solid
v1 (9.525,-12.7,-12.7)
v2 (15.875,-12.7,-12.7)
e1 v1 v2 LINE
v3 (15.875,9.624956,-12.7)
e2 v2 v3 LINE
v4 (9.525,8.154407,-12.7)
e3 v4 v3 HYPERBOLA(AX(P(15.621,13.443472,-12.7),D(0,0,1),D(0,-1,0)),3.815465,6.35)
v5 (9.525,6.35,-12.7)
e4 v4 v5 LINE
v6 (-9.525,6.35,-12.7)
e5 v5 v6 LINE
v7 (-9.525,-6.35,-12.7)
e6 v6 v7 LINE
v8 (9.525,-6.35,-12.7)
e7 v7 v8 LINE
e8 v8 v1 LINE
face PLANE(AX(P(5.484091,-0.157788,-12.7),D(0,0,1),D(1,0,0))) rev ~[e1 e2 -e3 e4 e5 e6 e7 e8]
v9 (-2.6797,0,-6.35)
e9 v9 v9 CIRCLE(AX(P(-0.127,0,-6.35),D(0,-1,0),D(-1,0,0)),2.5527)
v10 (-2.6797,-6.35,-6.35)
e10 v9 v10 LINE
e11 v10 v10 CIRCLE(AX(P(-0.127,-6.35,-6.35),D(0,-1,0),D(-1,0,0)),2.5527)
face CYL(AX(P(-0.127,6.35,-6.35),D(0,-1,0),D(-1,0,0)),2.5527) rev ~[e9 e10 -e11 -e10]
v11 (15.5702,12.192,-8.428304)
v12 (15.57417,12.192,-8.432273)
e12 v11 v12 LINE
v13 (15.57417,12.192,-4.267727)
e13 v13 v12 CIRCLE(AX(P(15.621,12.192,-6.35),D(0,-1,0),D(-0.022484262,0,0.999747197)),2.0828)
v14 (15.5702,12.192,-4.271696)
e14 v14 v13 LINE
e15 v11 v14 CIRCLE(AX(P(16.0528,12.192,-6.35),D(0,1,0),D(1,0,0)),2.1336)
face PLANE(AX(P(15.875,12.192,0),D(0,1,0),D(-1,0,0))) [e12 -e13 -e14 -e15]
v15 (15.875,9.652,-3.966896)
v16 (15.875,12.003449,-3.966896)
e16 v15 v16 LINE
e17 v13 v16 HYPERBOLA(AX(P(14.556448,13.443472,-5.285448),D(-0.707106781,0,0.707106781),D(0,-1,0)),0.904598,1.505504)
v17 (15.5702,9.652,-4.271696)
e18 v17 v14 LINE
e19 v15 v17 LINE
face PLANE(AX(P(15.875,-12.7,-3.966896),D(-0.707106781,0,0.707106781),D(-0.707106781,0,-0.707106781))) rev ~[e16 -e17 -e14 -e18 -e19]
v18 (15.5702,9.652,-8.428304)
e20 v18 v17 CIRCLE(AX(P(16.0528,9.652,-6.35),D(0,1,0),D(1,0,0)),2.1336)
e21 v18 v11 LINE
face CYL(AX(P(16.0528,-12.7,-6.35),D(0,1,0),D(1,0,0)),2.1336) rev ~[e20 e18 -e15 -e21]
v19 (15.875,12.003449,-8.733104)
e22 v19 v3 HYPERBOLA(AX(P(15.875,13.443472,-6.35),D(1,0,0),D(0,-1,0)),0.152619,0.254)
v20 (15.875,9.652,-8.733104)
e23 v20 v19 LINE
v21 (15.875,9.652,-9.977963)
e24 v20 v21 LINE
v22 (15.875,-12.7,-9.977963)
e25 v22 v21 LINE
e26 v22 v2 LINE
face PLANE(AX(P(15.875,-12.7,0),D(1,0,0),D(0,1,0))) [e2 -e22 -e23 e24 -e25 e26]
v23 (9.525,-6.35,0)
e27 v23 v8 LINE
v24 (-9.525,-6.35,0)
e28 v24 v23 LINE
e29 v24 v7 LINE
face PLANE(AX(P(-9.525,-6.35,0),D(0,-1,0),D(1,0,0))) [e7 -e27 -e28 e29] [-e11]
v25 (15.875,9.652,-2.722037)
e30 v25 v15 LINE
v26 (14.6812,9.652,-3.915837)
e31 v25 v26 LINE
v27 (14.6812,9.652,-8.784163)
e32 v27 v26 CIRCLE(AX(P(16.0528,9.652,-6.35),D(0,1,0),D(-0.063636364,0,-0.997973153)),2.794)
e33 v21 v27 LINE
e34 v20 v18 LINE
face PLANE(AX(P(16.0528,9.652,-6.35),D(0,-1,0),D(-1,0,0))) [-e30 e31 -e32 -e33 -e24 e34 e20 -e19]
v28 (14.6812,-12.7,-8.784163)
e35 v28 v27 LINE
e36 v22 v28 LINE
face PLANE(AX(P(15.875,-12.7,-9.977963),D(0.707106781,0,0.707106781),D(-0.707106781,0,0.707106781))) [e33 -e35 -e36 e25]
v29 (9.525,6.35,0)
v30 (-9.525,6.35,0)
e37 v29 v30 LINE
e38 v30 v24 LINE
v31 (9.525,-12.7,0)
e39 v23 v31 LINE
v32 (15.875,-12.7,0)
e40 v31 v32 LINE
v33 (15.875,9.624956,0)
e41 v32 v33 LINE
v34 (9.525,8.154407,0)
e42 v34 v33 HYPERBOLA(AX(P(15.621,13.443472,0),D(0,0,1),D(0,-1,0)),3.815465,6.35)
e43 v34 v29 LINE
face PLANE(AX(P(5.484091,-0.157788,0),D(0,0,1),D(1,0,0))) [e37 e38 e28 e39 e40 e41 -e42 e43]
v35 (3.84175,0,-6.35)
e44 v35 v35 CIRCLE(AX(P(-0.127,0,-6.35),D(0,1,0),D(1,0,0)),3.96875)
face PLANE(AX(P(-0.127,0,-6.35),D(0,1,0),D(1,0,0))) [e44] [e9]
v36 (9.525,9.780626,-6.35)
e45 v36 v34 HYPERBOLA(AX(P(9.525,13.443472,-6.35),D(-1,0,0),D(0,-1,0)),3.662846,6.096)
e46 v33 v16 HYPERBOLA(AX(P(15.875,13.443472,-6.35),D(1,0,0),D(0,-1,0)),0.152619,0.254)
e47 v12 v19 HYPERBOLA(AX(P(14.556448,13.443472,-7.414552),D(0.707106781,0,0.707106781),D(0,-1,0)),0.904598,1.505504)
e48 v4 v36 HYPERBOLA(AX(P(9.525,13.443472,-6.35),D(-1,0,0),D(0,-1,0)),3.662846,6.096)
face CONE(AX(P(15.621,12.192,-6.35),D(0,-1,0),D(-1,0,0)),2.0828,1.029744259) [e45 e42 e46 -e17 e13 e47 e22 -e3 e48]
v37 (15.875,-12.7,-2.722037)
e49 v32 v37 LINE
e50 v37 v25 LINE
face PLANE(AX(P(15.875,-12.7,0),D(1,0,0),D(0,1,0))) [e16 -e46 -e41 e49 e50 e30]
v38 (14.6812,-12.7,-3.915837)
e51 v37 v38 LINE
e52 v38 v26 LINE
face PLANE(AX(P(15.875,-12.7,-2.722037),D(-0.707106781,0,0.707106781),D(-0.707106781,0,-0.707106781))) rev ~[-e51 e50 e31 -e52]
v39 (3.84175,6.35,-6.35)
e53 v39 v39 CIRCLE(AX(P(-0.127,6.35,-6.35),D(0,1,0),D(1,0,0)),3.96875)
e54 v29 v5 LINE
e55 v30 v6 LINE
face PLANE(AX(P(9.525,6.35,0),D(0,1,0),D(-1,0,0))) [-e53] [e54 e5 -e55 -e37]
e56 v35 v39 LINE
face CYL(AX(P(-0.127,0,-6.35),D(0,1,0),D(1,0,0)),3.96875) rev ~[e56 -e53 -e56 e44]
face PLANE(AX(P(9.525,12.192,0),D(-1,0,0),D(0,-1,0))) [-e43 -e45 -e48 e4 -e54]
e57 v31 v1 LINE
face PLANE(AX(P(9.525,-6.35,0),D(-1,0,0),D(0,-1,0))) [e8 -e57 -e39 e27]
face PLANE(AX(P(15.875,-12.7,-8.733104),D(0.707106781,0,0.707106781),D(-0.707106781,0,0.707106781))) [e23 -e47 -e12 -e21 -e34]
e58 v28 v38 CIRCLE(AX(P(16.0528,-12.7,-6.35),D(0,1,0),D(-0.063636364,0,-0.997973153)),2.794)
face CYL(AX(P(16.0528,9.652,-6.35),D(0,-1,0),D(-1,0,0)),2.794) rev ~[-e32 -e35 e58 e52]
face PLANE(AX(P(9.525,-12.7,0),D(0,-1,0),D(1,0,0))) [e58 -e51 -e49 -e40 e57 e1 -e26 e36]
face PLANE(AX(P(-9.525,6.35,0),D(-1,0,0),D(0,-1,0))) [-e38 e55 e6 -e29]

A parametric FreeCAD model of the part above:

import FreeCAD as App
import Part
import Sketcher
from FreeCAD import Vector
Q = App.Units.Quantity


def add_polygon(sketch, points):
    """Adds a closed chain of lines whose ends are joined by coincident constraints."""
    first, n = sketch.GeometryCount, len(points)
    for a, b in zip(points, points[1:] + points[:1]):
        sketch.addGeometry(Part.LineSegment(App.Vector(*a, 0), App.Vector(*b, 0)), False)
    for i in range(n):
        sketch.addConstraint(Sketcher.Constraint("Coincident", first + i, 2, first + (i + 1) % n, 1))

doc = App.newDocument("Part")
body = doc.addObject("PartDesign::Body", "Body")

# Sketch on XY plane
sketch1 = body.newObject("Sketcher::SketchObject", "Sketch")
sketch1.AttachmentSupport = (doc.getObject("XY_Plane"), [""])
sketch1.MapMode = "FlatFace"
add_polygon(sketch1, [(-10, 6), (-10, -6), (10, -6), (10, -13), (16, -13), (16, 12), (10, 12), (10, 6)])  # lines 0-7
sketch1.addConstraint([
    Sketcher.Constraint("Vertical", 0),
    Sketcher.Constraint("Horizontal", 1),
    Sketcher.Constraint("Vertical", 2),
    Sketcher.Constraint("Horizontal", 3),
    Sketcher.Constraint("Vertical", 4),
    Sketcher.Constraint("Horizontal", 5),
    Sketcher.Constraint("Vertical", 6),
    Sketcher.Constraint("Horizontal", 7),
    Sketcher.Constraint("Symmetric", 0, 2, 6, 2, -1, 1),
    Sketcher.Constraint("Vertical", 2, 2, 5, 2),
    Sketcher.Constraint("Equal", 5, 2),
    Sketcher.Constraint("DistanceY", 0, 2, 0, 1, Q("0.5 in")),
    Sketcher.Constraint("DistanceX", 0, 2, 3, 2, Q("1 in")),
    Sketcher.Constraint("DistanceX", 1, 1, 1, 2, Q("0.75 in")),
    Sketcher.Constraint("DistanceY", 4, 1, 4, 2, Q("0.98 in")),
])
pad1 = body.newObject("PartDesign::Pad", "Pad")
pad1.Profile = sketch1
pad1.Length = Q("0.5 in")
pad1.Reversed = True

# Sketch on XZ plane
sketch2 = body.newObject("Sketcher::SketchObject", "Sketch001")
sketch2.AttachmentSupport = (doc.getObject("XZ_Plane"), [""])
sketch2.MapMode = "FlatFace"
sketch2.AttachmentOffset = App.Placement(Vector(0, 0, -0.25 * 25.4), App.Rotation())
sketch2.addGeometry(Part.Circle(Vector(-0.1, -6.3, 0), Vector(0, 0, 1), 2.6), False)
sketch2.addConstraint([
    Sketcher.Constraint("Diameter", 0, Q("0.201 in")),
    Sketcher.Constraint("DistanceY", 0, 3, -1, 1, Q("0.25 in")),
    Sketcher.Constraint("DistanceX", 0, 3, -1, 1, Q("0.005 in")),
])
doc.recompute()
hole = body.newObject("PartDesign::Hole", "Hole")
hole.Profile = sketch2
hole.ThreadType = "None"
hole.Diameter = Q("0.201 in")
hole.DepthType = "ThroughAll"
hole.HoleCutType = "Counterbore"
hole.HoleCutDiameter = Q("0.3125 in")
hole.HoleCutDepth = Q("0.25 in")
hole.Reversed = True

# Sketch on XZ plane
sketch3 = body.newObject("Sketcher::SketchObject", "Sketch002")
sketch3.AttachmentSupport = (doc.getObject("XZ_Plane"), [""])
sketch3.MapMode = "FlatFace"
sketch3.AttachmentOffset = App.Placement(Vector(0, 0, 0.5 * 25.4), App.Rotation())
sketch3.addGeometry(Part.Circle(Vector(16.1, -6.3, 0), Vector(0, 0, 1), 2.1), False)
sketch3.addConstraint([
    Sketcher.Constraint("Diameter", 0, Q("0.168 in")),
    Sketcher.Constraint("DistanceY", 0, 3, -1, 1, Q("0.25 in")),
    Sketcher.Constraint("DistanceX", -1, 1, 0, 3, Q("0.632 in")),
])
doc.recompute()
hole2 = body.newObject("PartDesign::Hole", "Hole001")
hole2.Profile = sketch3
hole2.ThreadType = "None"
hole2.Diameter = Q("0.168 in")
hole2.DepthType = "ThroughAll"
hole2.HoleCutType = "Counterbore"
hole2.HoleCutDiameter = Q("0.22 in")
hole2.HoleCutDepth = Q("0.88 in")

# Sketch on XZ plane
sketch4 = body.newObject("Sketcher::SketchObject", "Sketch003")
sketch4.AttachmentSupport = (doc.getObject("XZ_Plane"), [""])
sketch4.MapMode = "FlatFace"
sketch4.AttachmentOffset = App.Placement(Vector(0, 0, 0.5 * 25.4), App.Rotation())
add_polygon(sketch4, [(14.7, -8.8), (15.9, -10), (15.9, -8.8)])  # lines 0-2
add_polygon(sketch4, [(15.9, -3.9), (15.9, -2.7), (14.7, -3.9)])  # lines 3-5
sketch4.addConstraint([
    Sketcher.Constraint("Vertical", 1),
    Sketcher.Constraint("Horizontal", 2),
    Sketcher.Constraint("Vertical", 3),
    Sketcher.Constraint("Horizontal", 5),
    Sketcher.Constraint("Perpendicular", 0, 4),
    Sketcher.Constraint("Vertical", 1, 2, 3, 2),
    Sketcher.Constraint("Vertical", 2, 2, 4, 2),
    Sketcher.Constraint("Equal", 5, 1),
    Sketcher.Constraint("DistanceX", 2, 2, 2, 1, Q("0.047 in")),
    Sketcher.Constraint("DistanceX", -1, 1, 0, 2, Q("0.625 in")),
    Sketcher.Constraint("DistanceY", 0, 2, -1, 1, Q("9.977963 mm")),
    Sketcher.Constraint("DistanceY", 3, 2, -1, 1, Q("2.722037 mm")),
])
pocket1 = body.newObject("PartDesign::Pocket", "Pocket")
pocket1.Profile = sketch4
pocket1.Length = Q("0.88 in")

# Sketch on XZ plane
sketch5 = body.newObject("Sketcher::SketchObject", "Sketch004")
sketch5.AttachmentSupport = (doc.getObject("XZ_Plane"), [""])
sketch5.MapMode = "FlatFace"
sketch5.AttachmentOffset = App.Placement(Vector(0, 0, 0.5 * 25.4), App.Rotation())
add_polygon(sketch5, [(15.88, -3.97), (15.57, -4.27), (15.88, -4.27)])  # lines 0-2
add_polygon(sketch5, [(15.88, -8.73), (15.88, -8.43), (15.57, -8.43)])  # lines 3-5
sketch5.addConstraint([
    Sketcher.Constraint("Horizontal", 1),
    Sketcher.Constraint("Vertical", 2),
    Sketcher.Constraint("Vertical", 3),
    Sketcher.Constraint("Horizontal", 4),
    Sketcher.Constraint("Perpendicular", 0, 5),
    Sketcher.Constraint("Vertical", 2, 2, 3, 2),
    Sketcher.Constraint("Vertical", 0, 2, 4, 2),
    Sketcher.Constraint("Equal", 4, 2),
    Sketcher.Constraint("DistanceX", 1, 1, 1, 2, Q("0.012 in")),
    Sketcher.Constraint("DistanceX", -1, 1, 0, 2, Q("0.613 in")),
    Sketcher.Constraint("DistanceY", 0, 2, -1, 1, Q("4.271696 mm")),
    Sketcher.Constraint("DistanceY", 3, 2, -1, 1, Q("8.428304 mm")),
])
pocket2 = body.newObject("PartDesign::Pocket", "Pocket001")
pocket2.Profile = sketch5
pocket2.Type = "ThroughAll"

# Sketch on XY plane
sketch6 = body.newObject("Sketcher::SketchObject", "Sketch005")
sketch6.AttachmentSupport = (doc.getObject("XY_Plane"), [""])
sketch6.MapMode = "FlatFace"
sketch6.AttachmentOffset = App.Placement(Vector(0, 0, -0.25 * 25.4), App.Rotation())
add_polygon(sketch6, [(5.6, 7.4), (13.5, 12.2), (5.6, 12.2)])  # lines 0-2
sketch6.addGeometry(Part.LineSegment(Vector(15.6, 12.2, 0), Vector(15.6, 7.4, 0)), True)  # axis
sketch6.addConstraint([
    Sketcher.Constraint("Horizontal", 1),
    Sketcher.Constraint("Vertical", 2),
    Sketcher.Constraint("Vertical", 3),
    Sketcher.Constraint("Horizontal", 1, 2, 3, 1),
    Sketcher.Constraint("Horizontal", 2, 2, 3, 2),
    Sketcher.Constraint("Angle", 0, Q("31 deg")),
    Sketcher.Constraint("DistanceX", 1, 2, 1, 1, Q("0.3125 in")),
    Sketcher.Constraint("DistanceY", -1, 1, 0, 2, Q("0.48 in")),
    Sketcher.Constraint("DistanceX", -1, 1, 0, 2, Q("0.533 in")),
    Sketcher.Constraint("DistanceX", -1, 1, 3, 1, Q("0.615 in")),
])
groove = body.newObject("PartDesign::Groove", "Groove")
groove.Profile = sketch6
groove.ReferenceAxis = (sketch6, ["Axis0"])
groove.Angle = 360

# Sketch on YZ plane
sketch7 = body.newObject("Sketcher::SketchObject", "Sketch006")
sketch7.AttachmentSupport = (doc.getObject("YZ_Plane"), [""])
sketch7.MapMode = "FlatFace"
sketch7.AttachmentOffset = App.Placement(Vector(0, 0, 0.625 * 25.4), App.Rotation())
add_polygon(sketch7, [(12.2, -8.5), (9.7, -12.7), (12.2, -12.7)])  # lines 0-2
add_polygon(sketch7, [(9.7, 0), (12.2, -4.2), (12.2, 0)])  # lines 3-5
sketch7.addConstraint([
    Sketcher.Constraint("Horizontal", 1),
    Sketcher.Constraint("Vertical", 2),
    Sketcher.Constraint("Vertical", 4),
    Sketcher.Constraint("Horizontal", 5),
    Sketcher.Constraint("PointOnObject", 4, 2, -1),
    Sketcher.Constraint("Vertical", 2, 2, 3, 2),
    Sketcher.Constraint("Vertical", 0, 2, 5, 2),
    Sketcher.Constraint("Equal", 2, 4),
    Sketcher.Constraint("DistanceX", 1, 1, 1, 2, Q("0.1 in")),
    Sketcher.Constraint("Angle", 0, Q("-121 deg")),
    Sketcher.Constraint("DistanceY", 0, 2, -1, 1, Q("0.5 in")),
    Sketcher.Constraint("DistanceX", -1, 1, 0, 2, Q("0.38 in")),
])
pocket3 = body.newObject("PartDesign::Pocket", "Pocket002")
pocket3.Profile = sketch7
pocket3.Length = Q("0.25 in")

doc.recompute()
